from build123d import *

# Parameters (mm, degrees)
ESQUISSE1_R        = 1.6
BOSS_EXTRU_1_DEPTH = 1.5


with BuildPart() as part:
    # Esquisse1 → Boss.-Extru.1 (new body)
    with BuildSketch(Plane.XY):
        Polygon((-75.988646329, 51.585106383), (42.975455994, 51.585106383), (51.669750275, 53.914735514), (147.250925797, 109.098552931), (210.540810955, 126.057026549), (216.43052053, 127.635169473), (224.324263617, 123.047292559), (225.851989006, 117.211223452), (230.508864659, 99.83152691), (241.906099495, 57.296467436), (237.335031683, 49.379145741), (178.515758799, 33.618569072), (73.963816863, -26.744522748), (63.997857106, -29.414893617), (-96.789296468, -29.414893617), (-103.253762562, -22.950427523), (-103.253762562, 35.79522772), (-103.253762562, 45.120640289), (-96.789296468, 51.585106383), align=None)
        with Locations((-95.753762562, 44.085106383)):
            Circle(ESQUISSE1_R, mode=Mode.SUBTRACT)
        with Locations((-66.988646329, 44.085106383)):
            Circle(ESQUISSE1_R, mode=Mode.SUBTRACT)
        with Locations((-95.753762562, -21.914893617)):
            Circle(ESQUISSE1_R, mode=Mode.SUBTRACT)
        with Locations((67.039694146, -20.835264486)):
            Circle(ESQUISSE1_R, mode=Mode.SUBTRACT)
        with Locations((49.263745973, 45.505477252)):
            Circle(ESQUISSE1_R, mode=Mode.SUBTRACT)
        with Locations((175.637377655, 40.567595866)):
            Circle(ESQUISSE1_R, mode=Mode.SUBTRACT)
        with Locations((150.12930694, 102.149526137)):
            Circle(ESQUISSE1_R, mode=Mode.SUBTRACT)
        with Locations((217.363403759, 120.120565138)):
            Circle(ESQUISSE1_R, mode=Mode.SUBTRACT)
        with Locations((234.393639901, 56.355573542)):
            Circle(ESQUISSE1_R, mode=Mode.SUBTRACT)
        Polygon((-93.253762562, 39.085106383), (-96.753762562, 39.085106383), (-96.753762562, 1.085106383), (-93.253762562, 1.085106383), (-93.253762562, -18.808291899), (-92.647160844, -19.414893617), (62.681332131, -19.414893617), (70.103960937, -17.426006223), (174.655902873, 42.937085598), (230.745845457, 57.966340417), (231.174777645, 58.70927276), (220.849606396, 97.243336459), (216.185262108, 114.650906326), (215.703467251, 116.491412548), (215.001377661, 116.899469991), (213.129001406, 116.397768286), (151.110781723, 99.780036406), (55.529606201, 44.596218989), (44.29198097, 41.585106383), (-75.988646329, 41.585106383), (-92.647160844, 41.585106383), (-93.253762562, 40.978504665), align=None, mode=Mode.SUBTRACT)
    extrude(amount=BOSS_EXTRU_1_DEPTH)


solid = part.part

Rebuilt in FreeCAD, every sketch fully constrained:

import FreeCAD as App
import Part
import Sketcher

V = App.Vector
Q = App.Units.Quantity

doc = App.newDocument("Part")
body = doc.addObject("PartDesign::Body", "Body")

sketch1 = body.newObject("Sketcher::SketchObject", "Sketch")
sketch1.AttachmentSupport = (doc.getObject("XY_Plane"), [""])
sketch1.MapMode = "FlatFace"
sketch1.addGeometry([
    Part.LineSegment(V(42.975456, 51.585106, 0), V(-96.789296, 51.585106, 0)),
    Part.LineSegment(V(-96.789296, 51.585106, 0), V(-103.253763, 45.12064, 0)),
    Part.LineSegment(V(-103.253763, 45.12064, 0), V(-103.253763, -22.950428, 0)),
    Part.LineSegment(V(-103.253763, -22.950428, 0), V(-96.789296, -29.414894, 0)),
    Part.LineSegment(V(-96.789296, -29.414894, 0), V(63.997857, -29.414894, 0)),
    Part.LineSegment(V(63.997857, -29.414894, 0), V(73.963817, -26.744523, 0)),
    Part.LineSegment(V(73.963817, -26.744523, 0), V(178.515759, 33.618569, 0)),
    Part.LineSegment(V(178.515759, 33.618569, 0), V(237.335032, 49.379146, 0)),
    Part.LineSegment(V(237.335032, 49.379146, 0), V(241.906099, 57.296467, 0)),
    Part.LineSegment(V(241.906099, 57.296467, 0), V(230.508865, 99.831527, 0)),
    Part.LineSegment(V(230.508865, 99.831527, 0), V(225.851989, 117.211223, 0)),
    Part.LineSegment(V(225.851989, 117.211223, 0), V(224.324264, 123.047293, 0)),
    Part.LineSegment(V(224.324264, 123.047293, 0), V(216.430521, 127.635169, 0)),
    Part.LineSegment(V(216.430521, 127.635169, 0), V(210.540811, 126.057027, 0)),
    Part.LineSegment(V(210.540811, 126.057027, 0), V(147.250926, 109.098553, 0)),
    Part.LineSegment(V(147.250926, 109.098553, 0), V(51.66975, 53.914736, 0)),
    Part.LineSegment(V(51.66975, 53.914736, 0), V(42.975456, 51.585106, 0)),
    Part.Circle(V(175.637378, 40.567596, 0), V(0, 0, 1), 1.6),
    Part.Circle(V(67.039694, -20.835264, 0), V(0, 0, 1), 1.6),
    Part.Circle(V(-95.753763, -21.914894, 0), V(0, 0, 1), 1.6),
    Part.LineSegment(V(-93.253763, 39.085106, 0), V(-93.253763, 40.978505, 0)),
    Part.LineSegment(V(-93.253763, 40.978505, 0), V(-92.647161, 41.585106, 0)),
    Part.LineSegment(V(-92.647161, 41.585106, 0), V(44.291981, 41.585106, 0)),
    Part.LineSegment(V(44.291981, 41.585106, 0), V(55.529606, 44.596219, 0)),
    Part.LineSegment(V(55.529606, 44.596219, 0), V(151.110782, 99.780036, 0)),
    Part.LineSegment(V(151.110782, 99.780036, 0), V(213.129001, 116.397768, 0)),
    Part.LineSegment(V(213.129001, 116.397768, 0), V(215.001378, 116.89947, 0)),
    Part.LineSegment(V(215.001378, 116.89947, 0), V(215.703467, 116.491413, 0)),
    Part.LineSegment(V(215.703467, 116.491413, 0), V(216.185262, 114.650906, 0)),
    Part.LineSegment(V(216.185262, 114.650906, 0), V(220.849606, 97.243336, 0)),
    Part.LineSegment(V(220.849606, 97.243336, 0), V(231.174778, 58.709273, 0)),
    Part.LineSegment(V(231.174778, 58.709273, 0), V(230.745845, 57.96634, 0)),
    Part.LineSegment(V(230.745845, 57.96634, 0), V(174.655903, 42.937086, 0)),
    Part.LineSegment(V(174.655903, 42.937086, 0), V(70.103961, -17.426006, 0)),
    Part.LineSegment(V(70.103961, -17.426006, 0), V(62.681332, -19.414894, 0)),
    Part.LineSegment(V(62.681332, -19.414894, 0), V(-92.647161, -19.414894, 0)),
    Part.LineSegment(V(-92.647161, -19.414894, 0), V(-93.253763, -18.808292, 0)),
    Part.LineSegment(V(-93.253763, -18.808292, 0), V(-93.253763, 1.085106, 0)),
    Part.LineSegment(V(-93.253763, 1.085106, 0), V(-96.753763, 1.085106, 0)),
    Part.LineSegment(V(-96.753763, 1.085106, 0), V(-96.753763, 39.085106, 0)),
    Part.LineSegment(V(-96.753763, 39.085106, 0), V(-93.253763, 39.085106, 0)),
    Part.Circle(V(49.263746, 45.505477, 0), V(0, 0, 1), 1.6),
    Part.Circle(V(-66.988646, 44.085106, 0), V(0, 0, 1), 1.6),
    Part.Circle(V(-95.753763, 44.085106, 0), V(0, 0, 1), 1.6),
    Part.Circle(V(234.39364, 56.355574, 0), V(0, 0, 1), 1.6),
    Part.Circle(V(217.363404, 120.120565, 0), V(0, 0, 1), 1.6),
    Part.Circle(V(150.129307, 102.149526, 0), V(0, 0, 1), 1.6),
], False)
sketch1.addConstraint([
    Sketcher.Constraint("Coincident", 0, 2, 1, 1),
    Sketcher.Constraint("Coincident", 1, 2, 2, 1),
    Sketcher.Constraint("Coincident", 2, 2, 3, 1),
    Sketcher.Constraint("Coincident", 3, 2, 4, 1),
    Sketcher.Constraint("Coincident", 4, 2, 5, 1),
    Sketcher.Constraint("Coincident", 5, 2, 6, 1),
    Sketcher.Constraint("Coincident", 6, 2, 7, 1),
    Sketcher.Constraint("Coincident", 7, 2, 8, 1),
    Sketcher.Constraint("Coincident", 8, 2, 9, 1),
    Sketcher.Constraint("Coincident", 9, 2, 10, 1),
    Sketcher.Constraint("Coincident", 10, 2, 11, 1),
    Sketcher.Constraint("Coincident", 11, 2, 12, 1),
    Sketcher.Constraint("Coincident", 12, 2, 13, 1),
    Sketcher.Constraint("Coincident", 13, 2, 14, 1),
    Sketcher.Constraint("Coincident", 14, 2, 15, 1),
    Sketcher.Constraint("Coincident", 15, 2, 16, 1),
    Sketcher.Constraint("Coincident", 16, 2, 0, 1),
    Sketcher.Constraint("Coincident", 20, 2, 21, 1),
    Sketcher.Constraint("Coincident", 21, 2, 22, 1),
    Sketcher.Constraint("Coincident", 22, 2, 23, 1),
    Sketcher.Constraint("Coincident", 23, 2, 24, 1),
    Sketcher.Constraint("Coincident", 24, 2, 25, 1),
    Sketcher.Constraint("Coincident", 25, 2, 26, 1),
    Sketcher.Constraint("Coincident", 26, 2, 27, 1),
    Sketcher.Constraint("Coincident", 27, 2, 28, 1),
    Sketcher.Constraint("Coincident", 28, 2, 29, 1),
    Sketcher.Constraint("Coincident", 29, 2, 30, 1),
    Sketcher.Constraint("Coincident", 30, 2, 31, 1),
    Sketcher.Constraint("Coincident", 31, 2, 32, 1),
    Sketcher.Constraint("Coincident", 32, 2, 33, 1),
    Sketcher.Constraint("Coincident", 33, 2, 34, 1),
    Sketcher.Constraint("Coincident", 34, 2, 35, 1),
    Sketcher.Constraint("Coincident", 35, 2, 36, 1),
    Sketcher.Constraint("Coincident", 36, 2, 37, 1),
    Sketcher.Constraint("Coincident", 37, 2, 38, 1),
    Sketcher.Constraint("Coincident", 38, 2, 39, 1),
    Sketcher.Constraint("Coincident", 39, 2, 40, 1),
    Sketcher.Constraint("Coincident", 40, 2, 20, 1),
    Sketcher.Constraint("Horizontal", 0),
    Sketcher.Constraint("Vertical", 2),
    Sketcher.Constraint("Horizontal", 4),
    Sketcher.Constraint("Vertical", 20),
    Sketcher.Constraint("Horizontal", 22),
    Sketcher.Constraint("Horizontal", 35),
    Sketcher.Constraint("Vertical", 37),
    Sketcher.Constraint("Horizontal", 38),
    Sketcher.Constraint("Vertical", 39),
    Sketcher.Constraint("Horizontal", 40),
    Sketcher.Constraint("Diameter", 17, Q("3.2 mm")),
    Sketcher.Constraint("Diameter", 18, Q("3.2 mm")),
    Sketcher.Constraint("Diameter", 19, Q("3.2 mm")),
    Sketcher.Constraint("Diameter", 41, Q("3.2 mm")),
    Sketcher.Constraint("Diameter", 42, Q("3.2 mm")),
    Sketcher.Constraint("Diameter", 43, Q("3.2 mm")),
    Sketcher.Constraint("Diameter", 44, Q("3.2 mm")),
    Sketcher.Constraint("Diameter", 45, Q("3.2 mm")),
    Sketcher.Constraint("Diameter", 46, Q("3.2 mm")),
    Sketcher.Constraint("DistanceY", 39, 1, 39, 2, Q("38 mm")),
    Sketcher.Constraint("DistanceX", 38, 2, 38, 1, Q("3.5 mm")),
    Sketcher.Constraint("DistanceX", 40, 1, 40, 2, Q("3.5 mm")),
    Sketcher.Constraint("DistanceY", 19, 3, 42, 3, Q("66 mm")),
    Sketcher.Constraint("DistanceY", 19, 3, 43, 3, Q("66 mm")),
    Sketcher.Constraint("DistanceY", 4, 2, 16, 2, Q("81 mm")),
    Sketcher.Constraint("DistanceX", 1, 2, 20, 2, Q("10 mm")),
    Sketcher.Constraint("DistanceY", 21, 2, 0, 2, Q("10 mm")),
    Sketcher.Constraint("DistanceY", 4, 2, 34, 2, Q("10 mm")),
    Sketcher.Constraint("DistanceY", 19, 3, 37, 2, Q("23 mm")),
    Sketcher.Constraint("DistanceX", 38, 2, 19, 3, Q("1 mm")),
    Sketcher.Constraint("DistanceX", 39, 2, 43, 3, Q("1 mm")),
    Sketcher.Constraint("DistanceY", 43, 3, 0, 2, Q("7.5 mm")),
    Sketcher.Constraint("DistanceY", 5, 2, 41, 3, Q("72.25 mm")),
    Sketcher.Constraint("DistanceY", 18, 3, 15, 2, Q("74.75 mm")),
    Sketcher.Constraint("DistanceY", 20, 1, 20, 2, Q("1.893398 mm")),
    Sketcher.Constraint("DistanceY", 37, 1, 37, 2, Q("19.893398 mm")),
    Sketcher.Constraint("DistanceX", -1, 1, 25, 2, Q("213.129001 mm")),
    Sketcher.Constraint("DistanceY", 9, 2, 46, 3, Q("2.317999 mm")),
    Sketcher.Constraint("Distance", 30, Q("39.893398 mm")),
    Sketcher.Constraint("DistanceX", 22, 1, 22, 2, Q("136.939142 mm")),
    Sketcher.Constraint("DistanceX", -1, 1, 8, 2, Q("241.906099 mm")),
    Sketcher.Constraint("DistanceY", 6, 2, 8, 2, Q("23.677898 mm")),
    Sketcher.Constraint("DistanceX", 11, 2, 9, 2, Q("6.184601 mm")),
    Sketcher.Constraint("DistanceY", 9, 2, 13, 2, Q("26.2255 mm")),
    Sketcher.Constraint("DistanceX", 16, 2, 4, 2, Q("21.022401 mm")),
    Sketcher.Constraint("DistanceX", 20, 2, 21, 2, Q("0.606602 mm")),
    Sketcher.Constraint("DistanceY", 25, 2, 12, 2, Q("11.237401 mm")),
    Sketcher.Constraint("DistanceY", 25, 2, 26, 2, Q("0.501702 mm")),
    Sketcher.Constraint("DistanceY", 44, 3, 30, 2, Q("2.353699 mm")),
    Sketcher.Constraint("DistanceX", 19, 3, 35, 2, Q("3.106602 mm")),
    Sketcher.Constraint("Distance", 5, Q("10.317521 mm")),
    Sketcher.Constraint("Distance", 12, Q("9.130159 mm")),
    Sketcher.Constraint("Distance", 14, Q("65.522511 mm")),
    Sketcher.Constraint("Distance", 27, Q("0.81206 mm")),
    Sketcher.Constraint("Distance", 28, Q("1.902522 mm")),
    Sketcher.Constraint("Distance", 32, Q("58.068582 mm")),
    Sketcher.Constraint("Distance", 34, Q("7.684471 mm")),
    Sketcher.Constraint("DistanceX", 0, 2, 0, 1, Q("139.764752 mm")),
    Sketcher.Constraint("DistanceX", 4, 1, 4, 2, Q("160.787154 mm")),
    Sketcher.Constraint("DistanceX", 35, 2, 35, 1, Q("155.328493 mm")),
    Sketcher.Constraint("DistanceY", 2, 2, 2, 1, Q("68.071068 mm")),
    Sketcher.Constraint("DistanceX", -1, 1, 44, 3, Q("234.39364 mm")),
    Sketcher.Constraint("DistanceY", -1, 1, 1, 2, Q("45.12064 mm")),
    Sketcher.Constraint("DistanceX", -1, 1, 6, 2, Q("178.515759 mm")),
    Sketcher.Constraint("DistanceY", -1, 1, 6, 2, Q("33.618569 mm")),
    Sketcher.Constraint("DistanceX", -1, 1, 7, 2, Q("237.335032 mm")),
    Sketcher.Constraint("DistanceX", -1, 1, 10, 2, Q("225.851989 mm")),
    Sketcher.Constraint("DistanceX", -1, 1, 12, 2, Q("216.430521 mm")),
    Sketcher.Constraint("DistanceY", -1, 1, 12, 2, Q("127.635169 mm")),
    Sketcher.Constraint("DistanceX", -1, 1, 13, 2, Q("210.540811 mm")),
    Sketcher.Constraint("DistanceX", -1, 1, 15, 2, Q("51.66975 mm")),
    Sketcher.Constraint("DistanceX", 21, 2, -1, 1, Q("92.647161 mm")),
    Sketcher.Constraint("DistanceY", -1, 1, 23, 2, Q("44.596219 mm")),
    Sketcher.Constraint("DistanceX", -1, 1, 24, 2, Q("151.110782 mm")),
    Sketcher.Constraint("DistanceY", -1, 1, 31, 2, Q("57.96634 mm")),
    Sketcher.Constraint("DistanceX", -1, 1, 33, 2, Q("70.103961 mm")),
    Sketcher.Constraint("DistanceY", 36, 2, -1, 1, Q("18.808292 mm")),
    Sketcher.Constraint("DistanceY", 18, 3, 17, 3, Q("61.40286 mm")),
    Sketcher.Constraint("DistanceY", 19, 3, 18, 3, Q("1.079629 mm")),
    Sketcher.Constraint("DistanceX", 19, 3, 17, 3, Q("271.39114 mm")),
    Sketcher.Constraint("DistanceX", 41, 3, 18, 3, Q("17.775948 mm")),
    Sketcher.Constraint("DistanceY", 18, 3, 41, 3, Q("66.340742 mm")),
    Sketcher.Constraint("DistanceX", 41, 3, 17, 3, Q("126.373632 mm")),
    Sketcher.Constraint("DistanceX", 42, 3, 18, 3, Q("134.02834 mm")),
    Sketcher.Constraint("DistanceY", 18, 3, 44, 3, Q("77.190838 mm")),
    Sketcher.Constraint("DistanceY", 44, 3, 45, 3, Q("63.764992 mm")),
    Sketcher.Constraint("DistanceX", 18, 3, 45, 3, Q("150.32371 mm")),
    Sketcher.Constraint("DistanceX", 46, 3, 17, 3, Q("25.508071 mm")),
    Sketcher.Constraint("DistanceY", 17, 3, 46, 3, Q("61.58193 mm")),
    Sketcher.Constraint("DistanceX", 0, 2, 42, 3, Q("29.80065 mm")),
    Sketcher.Constraint("DistanceY", 17, 3, 7, 2, Q("8.81155 mm")),
    Sketcher.Constraint("DistanceX", 45, 3, 9, 2, Q("13.145461 mm")),
    Sketcher.Constraint("DistanceY", 10, 2, 45, 3, Q("2.909342 mm")),
    Sketcher.Constraint("DistanceX", 14, 2, 46, 3, Q("2.878381 mm")),
    Sketcher.Constraint("DistanceX", 41, 3, 23, 2, Q("6.26586 mm")),
    Sketcher.Constraint("DistanceY", 24, 2, 46, 3, Q("2.36949 mm")),
    Sketcher.Constraint("DistanceX", 26, 2, 10, 2, Q("10.850611 mm")),
    Sketcher.Constraint("DistanceX", 26, 2, 27, 2, Q("0.70209 mm")),
    Sketcher.Constraint("DistanceX", 25, 2, 28, 2, Q("3.056261 mm")),
    Sketcher.Constraint("DistanceX", 29, 2, 9, 2, Q("9.659258 mm")),
    Sketcher.Constraint("DistanceY", 29, 2, 9, 2, Q("2.58819 mm")),
    Sketcher.Constraint("DistanceX", 29, 2, 31, 2, Q("9.896239 mm")),
    Sketcher.Constraint("DistanceY", 17, 3, 32, 2, Q("2.36949 mm")),
])
pad1 = body.newObject("PartDesign::Pad", "Pad")
pad1.Profile = sketch1
pad1.Length = 1.5

doc.recompute()
